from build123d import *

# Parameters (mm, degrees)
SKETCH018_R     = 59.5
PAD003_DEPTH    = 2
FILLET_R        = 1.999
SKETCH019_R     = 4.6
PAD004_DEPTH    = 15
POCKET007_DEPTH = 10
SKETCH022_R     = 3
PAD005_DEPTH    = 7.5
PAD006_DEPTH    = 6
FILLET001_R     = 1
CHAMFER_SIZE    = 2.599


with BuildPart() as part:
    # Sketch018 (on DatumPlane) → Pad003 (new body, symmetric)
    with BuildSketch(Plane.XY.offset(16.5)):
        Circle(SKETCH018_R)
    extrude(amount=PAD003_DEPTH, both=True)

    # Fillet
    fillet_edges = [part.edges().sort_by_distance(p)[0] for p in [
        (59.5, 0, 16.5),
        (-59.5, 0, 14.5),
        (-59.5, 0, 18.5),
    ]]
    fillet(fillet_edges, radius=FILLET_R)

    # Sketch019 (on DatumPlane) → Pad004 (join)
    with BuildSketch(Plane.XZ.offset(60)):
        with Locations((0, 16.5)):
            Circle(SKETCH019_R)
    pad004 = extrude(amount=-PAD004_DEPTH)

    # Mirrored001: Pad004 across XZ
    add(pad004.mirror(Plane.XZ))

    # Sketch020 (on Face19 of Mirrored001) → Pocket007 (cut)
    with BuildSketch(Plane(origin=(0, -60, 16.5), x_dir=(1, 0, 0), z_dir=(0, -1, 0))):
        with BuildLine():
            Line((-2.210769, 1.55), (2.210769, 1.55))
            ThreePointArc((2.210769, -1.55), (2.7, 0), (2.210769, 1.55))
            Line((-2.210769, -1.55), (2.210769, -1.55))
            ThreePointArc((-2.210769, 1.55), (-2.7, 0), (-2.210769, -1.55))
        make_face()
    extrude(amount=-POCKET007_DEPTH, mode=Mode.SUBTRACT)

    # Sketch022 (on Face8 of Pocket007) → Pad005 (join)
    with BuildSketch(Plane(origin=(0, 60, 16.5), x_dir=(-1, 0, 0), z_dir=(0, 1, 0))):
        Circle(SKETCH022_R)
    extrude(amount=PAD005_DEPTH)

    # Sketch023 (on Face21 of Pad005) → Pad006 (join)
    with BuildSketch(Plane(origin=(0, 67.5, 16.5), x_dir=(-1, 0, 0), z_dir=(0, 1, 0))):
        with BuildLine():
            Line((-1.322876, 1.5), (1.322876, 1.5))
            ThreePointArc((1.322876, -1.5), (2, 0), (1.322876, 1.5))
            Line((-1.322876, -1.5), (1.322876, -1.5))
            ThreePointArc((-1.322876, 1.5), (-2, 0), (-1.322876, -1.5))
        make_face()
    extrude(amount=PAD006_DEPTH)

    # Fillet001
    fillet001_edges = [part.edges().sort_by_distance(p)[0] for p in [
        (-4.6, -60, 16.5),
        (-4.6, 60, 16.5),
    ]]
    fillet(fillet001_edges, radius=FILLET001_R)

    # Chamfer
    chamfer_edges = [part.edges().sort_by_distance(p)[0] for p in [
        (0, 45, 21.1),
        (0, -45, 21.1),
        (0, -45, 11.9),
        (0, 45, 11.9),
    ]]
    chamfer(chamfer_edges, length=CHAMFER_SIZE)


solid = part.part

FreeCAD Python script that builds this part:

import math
import FreeCAD as App
import Part
import Sketcher


def edges_at(feature, points):
    """Names of the edges that pass closest to the given points."""
    edges = feature.Shape.Edges
    near = lambda p: min(range(len(edges)), key=lambda i: edges[i].distToShape(Part.Vertex(*p))[0])
    return sorted({f"Edge{near(p) + 1}" for p in points})

doc = App.newDocument("Part")
params = doc.addObject("Spreadsheet::Sheet", "Params")
for row, (alias, value) in enumerate([
    ("sketch1_diameter", "119 mm"),
    ("pad1_length", "4 mm"),
    ("fillet_radius", "1.999 mm"),
    ("sketch2_diameter", "9.2 mm"),
    ("pad2_length", "15 mm"),
    ("sketch3_radius", "2.7 mm"),
    ("pocket1_length", "10 mm"),
    ("sketch4_diameter", "6 mm"),
    ("pad3_length", "7.5 mm"),
    ("sketch5_radius", "2.000001 mm"),
    ("pad4_length", "6 mm"),
    ("fillet2_radius", "1 mm"),
    ("chamfer_size", "2.599 mm"),
], start=1):
    params.set(f"A{row}", alias)
    params.set(f"B{row}", "=" + value)
    params.setAlias(f"B{row}", alias)

body = doc.addObject("PartDesign::Body", "Body")

# Sketch on XY plane
sketch1 = body.newObject("Sketcher::SketchObject", "Sketch")
sketch1.AttachmentSupport = (doc.getObject("XY_Plane"), [""])
sketch1.MapMode = "FlatFace"
sketch1.AttachmentOffset = App.Placement(App.Vector(0, 0, 16.5), App.Rotation())
sketch1.addGeometry(Part.Circle(App.Vector(0, 0, 0), App.Vector(0, 0, 1), 60), False)
sketch1.addConstraint([
    Sketcher.Constraint("Coincident", 0, 3, -1, 1),
    Sketcher.Constraint("Diameter", 0, 119.0),
])
sketch1.setExpression("Constraints[1]", "Params.sketch1_diameter")
pad1 = body.newObject("PartDesign::Pad", "Pad")
pad1.Profile = sketch1
pad1.setExpression("Length", "Params.pad1_length")
pad1.Midplane = True
doc.recompute()

fillet = body.newObject("PartDesign::Fillet", "Fillet")
fillet.Base = (pad1, ["Edge1"])
fillet.UseAllEdges = True
fillet.setExpression("Radius", "Params.fillet_radius")

# Sketch on XZ plane
sketch2 = body.newObject("Sketcher::SketchObject", "Sketch001")
sketch2.AttachmentSupport = (doc.getObject("XZ_Plane"), [""])
sketch2.MapMode = "FlatFace"
sketch2.AttachmentOffset = App.Placement(App.Vector(0, 0, 60), App.Rotation())
sketch2.addGeometry(Part.Circle(App.Vector(0, 16.5, 0), App.Vector(0, 0, 1), 4.6), False)
sketch2.addConstraint([
    Sketcher.Constraint("PointOnObject", 0, 3, -2),
    Sketcher.Constraint("Diameter", 0, 9.2),
    Sketcher.Constraint("DistanceY", -1, 1, 0, 3, 16.5),
])
sketch2.setExpression("Constraints[1]", "Params.sketch2_diameter")
pad2 = body.newObject("PartDesign::Pad", "Pad001")
pad2.Profile = sketch2
pad2.setExpression("Length", "Params.pad2_length")
pad2.Reversed = True
doc.recompute()

mirrored = body.newObject("PartDesign::Mirrored", "Mirrored")
mirrored.Originals = [pad2]
mirrored.MirrorPlane = (doc.getObject("XZ_Plane"), [""])
body.Tip = mirrored

# Sketch on XZ plane
sketch3 = body.newObject("Sketcher::SketchObject", "Sketch002")
sketch3.AttachmentSupport = (doc.getObject("XZ_Plane"), [""])
sketch3.MapMode = "FlatFace"
sketch3.AttachmentOffset = App.Placement(App.Vector(0, 0, 60), App.Rotation())
sketch3.addGeometry([
    Part.LineSegment(App.Vector(2.2, 18.1, 0), App.Vector(-2.2, 18.1, 0)),
    Part.ArcOfCircle(Part.Circle(App.Vector(0, 16.5, 0), App.Vector(0, 0, 1), 2.7), math.radians(145), math.radians(215)),
    Part.LineSegment(App.Vector(-2.2, 14.9, 0), App.Vector(2.2, 14.9, 0)),
    Part.ArcOfCircle(Part.Circle(App.Vector(0, 16.5, 0), App.Vector(0, 0, 1), 2.7), math.radians(-35), math.radians(35)),
], False)
sketch3.addConstraint([
    Sketcher.Constraint("Coincident", 0, 2, 1, 1),
    Sketcher.Constraint("Coincident", 1, 2, 2, 1),
    Sketcher.Constraint("Coincident", 2, 2, 3, 1),
    Sketcher.Constraint("Coincident", 3, 2, 0, 1),
    Sketcher.Constraint("Horizontal", 0),
    Sketcher.Constraint("Horizontal", 2),
    Sketcher.Constraint("Coincident", 3, 3, 1, 3),
    Sketcher.Constraint("Equal", 1, 3),
    Sketcher.Constraint("PointOnObject", 1, 3, -2),
    Sketcher.Constraint("Vertical", 0, 2, 1, 2),
    Sketcher.Constraint("Radius", 1, 2.7),
    Sketcher.Constraint("DistanceY", -1, 1, 1, 3, 16.5),
    Sketcher.Constraint("DistanceY", 1, 2, 0, 2, 3.1),
])
sketch3.setExpression("Constraints[10]", "Params.sketch3_radius")
pocket1 = body.newObject("PartDesign::Pocket", "Pocket")
pocket1.Profile = sketch3
pocket1.setExpression("Length", "Params.pocket1_length")

# Sketch on XZ plane
sketch4 = body.newObject("Sketcher::SketchObject", "Sketch003")
sketch4.AttachmentSupport = (doc.getObject("XZ_Plane"), [""])
sketch4.MapMode = "FlatFace"
sketch4.AttachmentOffset = App.Placement(App.Vector(0, 0, -60), App.Rotation())
sketch4.addGeometry(Part.Circle(App.Vector(0, 16.5, 0), App.Vector(0, 0, 1), 3), False)
sketch4.addConstraint([
    Sketcher.Constraint("PointOnObject", 0, 3, -2),
    Sketcher.Constraint("Diameter", 0, 6.0),
    Sketcher.Constraint("DistanceY", -1, 1, 0, 3, 16.5),
])
sketch4.setExpression("Constraints[1]", "Params.sketch4_diameter")
pad3 = body.newObject("PartDesign::Pad", "Pad002")
pad3.Profile = sketch4
pad3.setExpression("Length", "Params.pad3_length")
pad3.Reversed = True

# Sketch on XZ plane
sketch5 = body.newObject("Sketcher::SketchObject", "Sketch004")
sketch5.AttachmentSupport = (doc.getObject("XZ_Plane"), [""])
sketch5.MapMode = "FlatFace"
sketch5.AttachmentOffset = App.Placement(App.Vector(0, 0, -67.5), App.Rotation())
sketch5.addGeometry([
    Part.LineSegment(App.Vector(-1.3, 18, 0), App.Vector(1.3, 18, 0)),
    Part.ArcOfCircle(Part.Circle(App.Vector(0, 16.5, 0), App.Vector(0, 0, 1), 2), math.radians(-49), math.radians(49)),
    Part.LineSegment(App.Vector(1.3, 15, 0), App.Vector(-1.3, 15, 0)),
    Part.ArcOfCircle(Part.Circle(App.Vector(0, 16.5, 0), App.Vector(0, 0, 1), 2), math.radians(131), math.radians(229)),
], False)
sketch5.addConstraint([
    Sketcher.Constraint("Coincident", 0, 2, 1, 2),
    Sketcher.Constraint("Coincident", 1, 1, 2, 1),
    Sketcher.Constraint("Coincident", 2, 2, 3, 2),
    Sketcher.Constraint("Coincident", 3, 1, 0, 1),
    Sketcher.Constraint("Horizontal", 0),
    Sketcher.Constraint("Horizontal", 2),
    Sketcher.Constraint("Coincident", 3, 3, 1, 3),
    Sketcher.Constraint("Equal", 1, 3),
    Sketcher.Constraint("PointOnObject", 1, 3, -2),
    Sketcher.Constraint("Vertical", 0, 2, 1, 1),
    Sketcher.Constraint("Radius", 1, 2.000001),
    Sketcher.Constraint("DistanceY", -1, 1, 0, 2, 18.0),
    Sketcher.Constraint("DistanceY", -1, 1, 1, 1, 15.0),
])
sketch5.setExpression("Constraints[10]", "Params.sketch5_radius")
pad4 = body.newObject("PartDesign::Pad", "Pad003")
pad4.Profile = sketch5
pad4.setExpression("Length", "Params.pad4_length")
pad4.Reversed = True
doc.recompute()

fillet2 = body.newObject("PartDesign::Fillet", "Fillet001")
fillet2.Base = (pad4, edges_at(pad4, [(-4.6, -60, 16.5), (-4.6, 60, 16.5)]))
fillet2.setExpression("Radius", "Params.fillet2_radius")
doc.recompute()

chamfer = body.newObject("PartDesign::Chamfer", "Chamfer")
chamfer.Base = (fillet2, edges_at(fillet2, [
    (0, 45, 21.1),
    (0, -45, 21.1),
    (0, -45, 11.9),
    (0, 45, 11.9),
]))
chamfer.setExpression("Size", "Params.chamfer_size")

doc.recompute()
